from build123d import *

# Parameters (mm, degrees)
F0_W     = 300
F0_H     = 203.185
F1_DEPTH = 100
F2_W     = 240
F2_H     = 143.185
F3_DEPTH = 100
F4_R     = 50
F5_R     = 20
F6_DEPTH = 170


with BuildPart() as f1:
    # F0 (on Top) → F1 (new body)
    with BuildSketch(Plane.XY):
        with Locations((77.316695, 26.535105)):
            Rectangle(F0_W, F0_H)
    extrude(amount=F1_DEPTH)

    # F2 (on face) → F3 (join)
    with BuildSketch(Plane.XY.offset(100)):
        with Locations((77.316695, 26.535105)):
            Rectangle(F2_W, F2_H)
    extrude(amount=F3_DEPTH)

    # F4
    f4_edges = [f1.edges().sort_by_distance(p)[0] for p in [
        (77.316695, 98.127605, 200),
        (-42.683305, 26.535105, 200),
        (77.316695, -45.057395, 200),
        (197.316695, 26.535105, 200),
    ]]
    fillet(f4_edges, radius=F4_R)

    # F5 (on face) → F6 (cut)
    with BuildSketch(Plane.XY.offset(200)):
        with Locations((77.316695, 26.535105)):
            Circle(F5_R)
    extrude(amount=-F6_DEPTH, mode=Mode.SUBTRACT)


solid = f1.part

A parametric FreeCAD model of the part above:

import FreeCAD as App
import Part
import Sketcher


def edges_at(feature, points):
    """Names of the edges that pass closest to the given points."""
    edges = feature.Shape.Edges
    near = lambda p: min(range(len(edges)), key=lambda i: edges[i].distToShape(Part.Vertex(*p))[0])
    return sorted({f"Edge{near(p) + 1}" for p in points})

doc = App.newDocument("Part")
body = doc.addObject("PartDesign::Body", "Body")

# Sketch on XY plane
sketch1 = body.newObject("Sketcher::SketchObject", "Sketch")
sketch1.AttachmentSupport = (doc.getObject("XY_Plane"), [""])
sketch1.MapMode = "FlatFace"
sketch1.addGeometry([
    Part.LineSegment(App.Vector(-73, 128, 0), App.Vector(-73, -75, 0)),
    Part.LineSegment(App.Vector(-73, -75, 0), App.Vector(227, -75, 0)),
    Part.LineSegment(App.Vector(227, -75, 0), App.Vector(227, 128, 0)),
    Part.LineSegment(App.Vector(227, 128, 0), App.Vector(-73, 128, 0)),
], False)
sketch1.addConstraint([
    Sketcher.Constraint("Coincident", 0, 2, 1, 1),
    Sketcher.Constraint("Coincident", 1, 2, 2, 1),
    Sketcher.Constraint("Coincident", 2, 2, 3, 1),
    Sketcher.Constraint("Coincident", 3, 2, 0, 1),
    Sketcher.Constraint("Vertical", 0),
    Sketcher.Constraint("Horizontal", 1),
    Sketcher.Constraint("Vertical", 2),
    Sketcher.Constraint("Horizontal", 3),
    Sketcher.Constraint("DistanceX", 1, 1, 1, 2, 300.0),
    Sketcher.Constraint("DistanceY", 0, 2, 0, 1, 203.185),
    Sketcher.Constraint("DistanceX", 0, 2, -1, 1, 72.683305),
    Sketcher.Constraint("DistanceY", 0, 2, -1, 1, 75.057395),
])
pad1 = body.newObject("PartDesign::Pad", "Pad")
pad1.Profile = sketch1
pad1.Length = 100

# Sketch on XY plane
sketch2 = body.newObject("Sketcher::SketchObject", "Sketch001")
sketch2.AttachmentSupport = (doc.getObject("XY_Plane"), [""])
sketch2.MapMode = "FlatFace"
sketch2.AttachmentOffset = App.Placement(App.Vector(0, 0, 100), App.Rotation())
sketch2.addGeometry([
    Part.LineSegment(App.Vector(-43, 98, 0), App.Vector(-43, -45, 0)),
    Part.LineSegment(App.Vector(-43, -45, 0), App.Vector(197, -45, 0)),
    Part.LineSegment(App.Vector(197, -45, 0), App.Vector(197, 98, 0)),
    Part.LineSegment(App.Vector(197, 98, 0), App.Vector(-43, 98, 0)),
], False)
sketch2.addConstraint([
    Sketcher.Constraint("Coincident", 0, 2, 1, 1),
    Sketcher.Constraint("Coincident", 1, 2, 2, 1),
    Sketcher.Constraint("Coincident", 2, 2, 3, 1),
    Sketcher.Constraint("Coincident", 3, 2, 0, 1),
    Sketcher.Constraint("Vertical", 0),
    Sketcher.Constraint("Horizontal", 1),
    Sketcher.Constraint("Vertical", 2),
    Sketcher.Constraint("Horizontal", 3),
    Sketcher.Constraint("DistanceX", 1, 1, 1, 2, 240.0),
    Sketcher.Constraint("DistanceY", 0, 2, 0, 1, 143.185),
    Sketcher.Constraint("DistanceX", 0, 2, -1, 1, 42.683305),
    Sketcher.Constraint("DistanceY", 0, 2, -1, 1, 45.057395),
])
pad2 = body.newObject("PartDesign::Pad", "Pad001")
pad2.Profile = sketch2
pad2.Length = 100
doc.recompute()

fillet = body.newObject("PartDesign::Fillet", "Fillet")
fillet.Base = (pad2, edges_at(pad2, [
    (77.317, 98.128, 200),
    (-42.683, 26.535, 200),
    (77.317, -45.057, 200),
    (197.317, 26.535, 200),
]))
fillet.Radius = 50

# Sketch on XY plane
sketch3 = body.newObject("Sketcher::SketchObject", "Sketch002")
sketch3.AttachmentSupport = (doc.getObject("XY_Plane"), [""])
sketch3.MapMode = "FlatFace"
sketch3.AttachmentOffset = App.Placement(App.Vector(0, 0, 200), App.Rotation())
sketch3.addGeometry(Part.Circle(App.Vector(77, 27, 0), App.Vector(0, 0, 1), 20), False)
sketch3.addConstraint([
    Sketcher.Constraint("Diameter", 0, 40.0),
    Sketcher.Constraint("DistanceX", -1, 1, 0, 3, 77.316695),
    Sketcher.Constraint("DistanceY", -1, 1, 0, 3, 26.535105),
])
pocket1 = body.newObject("PartDesign::Pocket", "Pocket")
pocket1.Profile = sketch3
pocket1.Length = 170

doc.recompute()
